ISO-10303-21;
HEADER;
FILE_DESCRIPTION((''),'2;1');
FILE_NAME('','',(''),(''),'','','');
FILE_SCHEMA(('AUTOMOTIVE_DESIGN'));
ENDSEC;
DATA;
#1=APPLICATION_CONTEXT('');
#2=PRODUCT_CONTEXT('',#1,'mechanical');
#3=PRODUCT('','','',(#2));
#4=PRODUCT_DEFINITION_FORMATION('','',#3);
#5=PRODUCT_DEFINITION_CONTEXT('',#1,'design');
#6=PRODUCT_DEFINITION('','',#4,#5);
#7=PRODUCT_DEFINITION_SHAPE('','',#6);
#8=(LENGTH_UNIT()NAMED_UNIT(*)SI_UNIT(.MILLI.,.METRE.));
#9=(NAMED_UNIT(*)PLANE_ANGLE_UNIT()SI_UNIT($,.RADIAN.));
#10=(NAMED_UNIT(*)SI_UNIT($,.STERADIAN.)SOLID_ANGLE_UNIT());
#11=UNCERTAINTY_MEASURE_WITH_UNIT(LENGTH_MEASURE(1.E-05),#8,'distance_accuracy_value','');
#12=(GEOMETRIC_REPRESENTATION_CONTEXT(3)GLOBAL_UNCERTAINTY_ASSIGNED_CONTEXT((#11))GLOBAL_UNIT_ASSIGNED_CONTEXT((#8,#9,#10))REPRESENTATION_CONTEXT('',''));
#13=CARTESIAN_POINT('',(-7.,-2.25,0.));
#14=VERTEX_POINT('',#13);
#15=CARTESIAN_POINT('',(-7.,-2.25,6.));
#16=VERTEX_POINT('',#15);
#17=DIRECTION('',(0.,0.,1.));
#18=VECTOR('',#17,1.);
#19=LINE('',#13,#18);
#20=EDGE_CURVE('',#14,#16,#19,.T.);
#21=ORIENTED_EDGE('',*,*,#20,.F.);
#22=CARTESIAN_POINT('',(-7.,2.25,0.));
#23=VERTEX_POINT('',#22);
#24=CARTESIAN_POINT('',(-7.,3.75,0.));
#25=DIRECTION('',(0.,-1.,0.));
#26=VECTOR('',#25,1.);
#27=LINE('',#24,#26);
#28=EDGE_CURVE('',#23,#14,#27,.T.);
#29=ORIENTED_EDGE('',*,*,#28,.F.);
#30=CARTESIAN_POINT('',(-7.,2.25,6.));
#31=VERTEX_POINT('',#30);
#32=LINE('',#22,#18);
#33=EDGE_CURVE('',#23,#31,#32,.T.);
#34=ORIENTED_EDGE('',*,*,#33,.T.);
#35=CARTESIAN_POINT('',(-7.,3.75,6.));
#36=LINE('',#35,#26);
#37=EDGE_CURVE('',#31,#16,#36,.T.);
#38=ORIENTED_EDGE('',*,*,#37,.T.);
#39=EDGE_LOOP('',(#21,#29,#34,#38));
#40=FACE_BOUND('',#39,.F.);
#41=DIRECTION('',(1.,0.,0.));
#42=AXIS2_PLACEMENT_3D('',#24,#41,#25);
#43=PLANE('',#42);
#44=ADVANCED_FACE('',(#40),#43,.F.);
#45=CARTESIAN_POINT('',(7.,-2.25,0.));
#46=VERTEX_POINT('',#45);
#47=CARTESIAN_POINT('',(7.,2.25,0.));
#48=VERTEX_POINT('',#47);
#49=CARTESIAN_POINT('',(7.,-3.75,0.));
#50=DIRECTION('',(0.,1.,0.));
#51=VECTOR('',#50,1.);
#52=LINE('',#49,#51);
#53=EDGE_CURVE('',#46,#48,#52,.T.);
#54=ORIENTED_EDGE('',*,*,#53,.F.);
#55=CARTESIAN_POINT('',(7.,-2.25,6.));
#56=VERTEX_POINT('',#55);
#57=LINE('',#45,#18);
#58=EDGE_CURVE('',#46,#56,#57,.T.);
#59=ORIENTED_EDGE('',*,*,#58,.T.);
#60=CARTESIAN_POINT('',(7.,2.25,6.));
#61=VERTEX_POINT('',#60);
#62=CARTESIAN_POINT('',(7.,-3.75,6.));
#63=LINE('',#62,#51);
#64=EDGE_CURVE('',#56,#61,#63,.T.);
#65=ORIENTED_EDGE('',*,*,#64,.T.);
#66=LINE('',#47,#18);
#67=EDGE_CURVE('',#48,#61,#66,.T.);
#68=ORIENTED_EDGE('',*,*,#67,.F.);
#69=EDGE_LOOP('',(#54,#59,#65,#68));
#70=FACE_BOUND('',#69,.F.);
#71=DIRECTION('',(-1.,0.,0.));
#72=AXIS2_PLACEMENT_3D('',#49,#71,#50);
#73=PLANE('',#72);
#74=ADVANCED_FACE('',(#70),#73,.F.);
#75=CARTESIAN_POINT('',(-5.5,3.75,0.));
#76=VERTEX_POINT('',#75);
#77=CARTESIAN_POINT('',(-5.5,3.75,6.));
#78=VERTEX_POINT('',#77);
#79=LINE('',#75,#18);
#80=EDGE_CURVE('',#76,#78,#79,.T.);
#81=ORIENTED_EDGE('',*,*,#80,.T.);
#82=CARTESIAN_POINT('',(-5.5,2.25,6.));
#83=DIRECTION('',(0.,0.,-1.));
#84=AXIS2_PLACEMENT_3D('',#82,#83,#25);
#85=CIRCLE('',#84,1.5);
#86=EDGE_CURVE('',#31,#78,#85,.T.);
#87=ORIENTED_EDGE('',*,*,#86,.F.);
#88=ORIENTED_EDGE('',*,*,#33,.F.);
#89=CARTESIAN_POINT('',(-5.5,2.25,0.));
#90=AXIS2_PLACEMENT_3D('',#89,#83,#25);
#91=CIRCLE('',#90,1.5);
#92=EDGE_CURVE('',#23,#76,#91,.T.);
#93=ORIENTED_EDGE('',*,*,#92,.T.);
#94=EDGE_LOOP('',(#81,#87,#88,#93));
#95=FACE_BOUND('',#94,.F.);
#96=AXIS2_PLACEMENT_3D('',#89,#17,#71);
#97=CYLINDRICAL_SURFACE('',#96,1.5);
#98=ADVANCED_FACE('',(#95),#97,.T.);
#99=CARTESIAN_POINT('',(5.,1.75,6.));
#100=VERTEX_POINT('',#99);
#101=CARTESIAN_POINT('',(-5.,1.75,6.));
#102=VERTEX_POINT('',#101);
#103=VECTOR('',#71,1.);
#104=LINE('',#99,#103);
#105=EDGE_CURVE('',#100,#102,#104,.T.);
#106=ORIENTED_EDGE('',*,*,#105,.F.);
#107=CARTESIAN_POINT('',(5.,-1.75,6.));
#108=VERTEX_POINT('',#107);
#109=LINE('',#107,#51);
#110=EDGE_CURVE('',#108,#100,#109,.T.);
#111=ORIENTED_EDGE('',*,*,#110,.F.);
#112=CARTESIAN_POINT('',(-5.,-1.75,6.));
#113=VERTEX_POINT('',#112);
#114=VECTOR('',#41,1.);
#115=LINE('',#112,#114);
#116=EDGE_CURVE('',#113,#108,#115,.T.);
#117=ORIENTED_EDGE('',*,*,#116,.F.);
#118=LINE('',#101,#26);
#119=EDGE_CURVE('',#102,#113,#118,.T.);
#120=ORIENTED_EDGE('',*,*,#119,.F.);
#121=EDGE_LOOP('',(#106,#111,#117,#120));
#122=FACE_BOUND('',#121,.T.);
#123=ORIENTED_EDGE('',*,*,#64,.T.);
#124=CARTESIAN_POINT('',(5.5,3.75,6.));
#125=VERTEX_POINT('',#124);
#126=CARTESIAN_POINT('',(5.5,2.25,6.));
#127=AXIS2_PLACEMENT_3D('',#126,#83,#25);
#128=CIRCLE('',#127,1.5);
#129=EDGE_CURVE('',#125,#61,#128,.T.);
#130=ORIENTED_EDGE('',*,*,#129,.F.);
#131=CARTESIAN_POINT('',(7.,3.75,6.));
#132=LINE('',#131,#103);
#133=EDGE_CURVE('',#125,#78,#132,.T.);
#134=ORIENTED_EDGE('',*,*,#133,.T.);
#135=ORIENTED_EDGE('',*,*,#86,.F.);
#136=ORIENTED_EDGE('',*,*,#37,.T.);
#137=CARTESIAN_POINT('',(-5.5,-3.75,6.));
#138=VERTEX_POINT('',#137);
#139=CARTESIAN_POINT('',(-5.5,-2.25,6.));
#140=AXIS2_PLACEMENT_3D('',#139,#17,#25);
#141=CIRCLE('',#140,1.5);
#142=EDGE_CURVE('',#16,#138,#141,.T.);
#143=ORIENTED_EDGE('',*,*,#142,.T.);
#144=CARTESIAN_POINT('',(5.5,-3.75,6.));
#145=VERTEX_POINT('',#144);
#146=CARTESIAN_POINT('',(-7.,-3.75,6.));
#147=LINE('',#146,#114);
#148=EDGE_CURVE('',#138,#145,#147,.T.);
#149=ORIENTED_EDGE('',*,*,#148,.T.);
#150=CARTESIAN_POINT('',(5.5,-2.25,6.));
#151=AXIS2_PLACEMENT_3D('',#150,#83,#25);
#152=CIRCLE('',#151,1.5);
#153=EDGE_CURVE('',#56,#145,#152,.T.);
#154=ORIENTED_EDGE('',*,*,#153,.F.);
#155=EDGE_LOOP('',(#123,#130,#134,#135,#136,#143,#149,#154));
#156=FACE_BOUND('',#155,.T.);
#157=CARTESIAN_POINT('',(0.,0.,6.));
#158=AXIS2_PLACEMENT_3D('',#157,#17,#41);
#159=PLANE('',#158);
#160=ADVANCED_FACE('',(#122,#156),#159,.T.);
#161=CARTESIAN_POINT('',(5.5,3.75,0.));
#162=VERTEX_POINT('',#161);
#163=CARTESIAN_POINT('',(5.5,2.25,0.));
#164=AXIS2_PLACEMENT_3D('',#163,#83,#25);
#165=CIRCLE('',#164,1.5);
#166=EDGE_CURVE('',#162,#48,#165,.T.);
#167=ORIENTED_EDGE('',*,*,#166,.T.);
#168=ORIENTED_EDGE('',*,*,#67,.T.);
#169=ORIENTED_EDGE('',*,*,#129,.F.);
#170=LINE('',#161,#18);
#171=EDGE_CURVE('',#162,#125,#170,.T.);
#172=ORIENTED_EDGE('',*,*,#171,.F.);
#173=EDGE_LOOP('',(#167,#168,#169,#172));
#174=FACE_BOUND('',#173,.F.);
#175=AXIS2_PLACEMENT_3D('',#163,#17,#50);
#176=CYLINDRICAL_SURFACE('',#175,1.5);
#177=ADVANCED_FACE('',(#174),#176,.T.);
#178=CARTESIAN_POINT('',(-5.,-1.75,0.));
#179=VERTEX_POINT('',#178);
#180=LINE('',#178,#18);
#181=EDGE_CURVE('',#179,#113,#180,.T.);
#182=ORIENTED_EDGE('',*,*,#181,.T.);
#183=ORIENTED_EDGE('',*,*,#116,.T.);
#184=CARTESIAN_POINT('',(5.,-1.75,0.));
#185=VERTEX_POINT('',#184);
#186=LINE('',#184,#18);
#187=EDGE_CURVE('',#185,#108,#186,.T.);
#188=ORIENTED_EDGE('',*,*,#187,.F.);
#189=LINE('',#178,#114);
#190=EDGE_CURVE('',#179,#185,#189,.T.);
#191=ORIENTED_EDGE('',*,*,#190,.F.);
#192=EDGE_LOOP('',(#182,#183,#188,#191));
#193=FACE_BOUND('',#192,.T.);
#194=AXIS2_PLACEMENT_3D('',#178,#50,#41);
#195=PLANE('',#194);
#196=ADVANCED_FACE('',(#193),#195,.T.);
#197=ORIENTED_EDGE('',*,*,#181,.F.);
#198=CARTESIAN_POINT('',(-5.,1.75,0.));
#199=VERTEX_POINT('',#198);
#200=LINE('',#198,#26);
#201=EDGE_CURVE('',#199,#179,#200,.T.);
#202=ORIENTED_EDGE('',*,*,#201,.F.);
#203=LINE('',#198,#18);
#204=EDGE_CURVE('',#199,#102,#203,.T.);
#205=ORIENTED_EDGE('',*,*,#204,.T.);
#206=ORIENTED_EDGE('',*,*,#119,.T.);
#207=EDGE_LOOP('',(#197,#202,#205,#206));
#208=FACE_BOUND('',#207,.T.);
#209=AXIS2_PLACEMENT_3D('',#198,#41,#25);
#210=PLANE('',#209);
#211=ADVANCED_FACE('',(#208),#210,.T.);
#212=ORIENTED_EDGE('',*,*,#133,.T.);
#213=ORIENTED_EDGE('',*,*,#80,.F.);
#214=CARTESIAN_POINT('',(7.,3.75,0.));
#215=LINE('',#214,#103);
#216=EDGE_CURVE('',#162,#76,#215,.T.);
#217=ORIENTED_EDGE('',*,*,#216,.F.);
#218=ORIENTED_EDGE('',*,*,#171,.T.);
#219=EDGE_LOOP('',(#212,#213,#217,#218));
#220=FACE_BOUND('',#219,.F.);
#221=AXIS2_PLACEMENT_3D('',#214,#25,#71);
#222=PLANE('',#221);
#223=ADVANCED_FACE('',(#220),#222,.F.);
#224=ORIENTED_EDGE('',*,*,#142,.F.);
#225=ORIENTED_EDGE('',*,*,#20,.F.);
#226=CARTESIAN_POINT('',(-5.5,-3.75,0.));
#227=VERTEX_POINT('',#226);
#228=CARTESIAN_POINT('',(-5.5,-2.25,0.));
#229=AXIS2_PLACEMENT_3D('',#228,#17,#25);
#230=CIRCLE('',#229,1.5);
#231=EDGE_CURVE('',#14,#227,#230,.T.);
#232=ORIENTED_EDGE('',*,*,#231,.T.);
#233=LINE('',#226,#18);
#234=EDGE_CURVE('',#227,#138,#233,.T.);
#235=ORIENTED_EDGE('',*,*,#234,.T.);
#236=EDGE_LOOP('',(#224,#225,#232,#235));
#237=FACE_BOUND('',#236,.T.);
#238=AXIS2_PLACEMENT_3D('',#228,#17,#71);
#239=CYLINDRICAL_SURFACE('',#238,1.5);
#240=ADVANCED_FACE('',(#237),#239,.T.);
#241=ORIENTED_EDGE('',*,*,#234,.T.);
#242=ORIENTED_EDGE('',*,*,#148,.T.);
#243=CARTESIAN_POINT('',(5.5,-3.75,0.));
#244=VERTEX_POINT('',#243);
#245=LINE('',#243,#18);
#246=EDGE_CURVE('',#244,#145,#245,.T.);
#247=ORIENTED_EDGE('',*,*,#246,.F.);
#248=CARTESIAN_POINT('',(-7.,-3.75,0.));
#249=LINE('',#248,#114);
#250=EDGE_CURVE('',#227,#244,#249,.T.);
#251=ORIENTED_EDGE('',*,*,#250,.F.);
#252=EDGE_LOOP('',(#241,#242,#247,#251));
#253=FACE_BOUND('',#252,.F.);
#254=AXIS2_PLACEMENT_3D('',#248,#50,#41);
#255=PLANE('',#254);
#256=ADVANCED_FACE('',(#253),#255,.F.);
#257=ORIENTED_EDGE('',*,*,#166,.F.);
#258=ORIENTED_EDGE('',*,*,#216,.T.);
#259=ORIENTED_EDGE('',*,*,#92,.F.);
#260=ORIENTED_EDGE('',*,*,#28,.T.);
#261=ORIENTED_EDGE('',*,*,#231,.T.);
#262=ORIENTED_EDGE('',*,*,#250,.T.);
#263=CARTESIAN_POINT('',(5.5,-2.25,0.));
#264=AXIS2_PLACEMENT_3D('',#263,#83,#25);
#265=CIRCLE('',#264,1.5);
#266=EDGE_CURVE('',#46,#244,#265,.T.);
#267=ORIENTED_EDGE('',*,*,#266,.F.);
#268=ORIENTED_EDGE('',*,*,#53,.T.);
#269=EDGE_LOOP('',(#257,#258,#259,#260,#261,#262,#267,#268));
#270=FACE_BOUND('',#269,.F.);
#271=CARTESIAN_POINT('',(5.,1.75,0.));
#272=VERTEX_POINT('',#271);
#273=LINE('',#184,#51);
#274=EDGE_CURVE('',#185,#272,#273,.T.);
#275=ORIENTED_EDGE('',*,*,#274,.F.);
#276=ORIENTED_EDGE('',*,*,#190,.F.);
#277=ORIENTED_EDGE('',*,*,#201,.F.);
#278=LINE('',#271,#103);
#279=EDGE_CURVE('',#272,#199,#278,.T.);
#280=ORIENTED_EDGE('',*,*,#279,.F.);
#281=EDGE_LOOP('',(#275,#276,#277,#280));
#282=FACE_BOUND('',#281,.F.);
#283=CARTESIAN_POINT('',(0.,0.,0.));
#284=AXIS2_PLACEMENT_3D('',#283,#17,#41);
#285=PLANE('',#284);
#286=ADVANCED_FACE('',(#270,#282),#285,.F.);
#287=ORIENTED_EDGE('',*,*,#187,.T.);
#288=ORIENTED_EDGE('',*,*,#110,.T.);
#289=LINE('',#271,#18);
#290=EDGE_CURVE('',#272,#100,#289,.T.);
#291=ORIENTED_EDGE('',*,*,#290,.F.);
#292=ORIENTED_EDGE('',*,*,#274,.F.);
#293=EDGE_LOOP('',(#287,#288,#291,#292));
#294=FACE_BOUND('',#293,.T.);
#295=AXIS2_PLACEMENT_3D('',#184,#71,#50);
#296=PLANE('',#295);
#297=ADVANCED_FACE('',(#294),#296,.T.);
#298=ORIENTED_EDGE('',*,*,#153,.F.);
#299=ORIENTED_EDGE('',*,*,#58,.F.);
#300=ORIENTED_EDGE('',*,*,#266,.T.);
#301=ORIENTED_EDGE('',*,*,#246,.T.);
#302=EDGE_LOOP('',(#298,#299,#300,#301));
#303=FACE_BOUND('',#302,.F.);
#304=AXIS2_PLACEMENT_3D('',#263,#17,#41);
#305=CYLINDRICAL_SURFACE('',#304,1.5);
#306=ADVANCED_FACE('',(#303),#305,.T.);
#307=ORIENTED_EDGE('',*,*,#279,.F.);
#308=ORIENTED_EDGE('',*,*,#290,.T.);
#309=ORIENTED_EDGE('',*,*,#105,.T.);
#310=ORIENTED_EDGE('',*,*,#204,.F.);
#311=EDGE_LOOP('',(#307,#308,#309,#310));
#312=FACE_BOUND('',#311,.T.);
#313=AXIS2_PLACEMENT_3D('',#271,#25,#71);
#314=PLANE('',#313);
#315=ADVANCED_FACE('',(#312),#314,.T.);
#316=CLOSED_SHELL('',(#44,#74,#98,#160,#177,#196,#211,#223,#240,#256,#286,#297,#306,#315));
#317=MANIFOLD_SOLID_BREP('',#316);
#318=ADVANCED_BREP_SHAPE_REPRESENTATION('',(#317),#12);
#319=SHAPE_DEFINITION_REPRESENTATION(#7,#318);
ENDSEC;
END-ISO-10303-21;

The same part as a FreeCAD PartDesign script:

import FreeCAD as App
import Part
import Sketcher

V = App.Vector
Q = App.Units.Quantity


def edges_at(feature, points):
    """Names of the edges that pass closest to the given points."""
    edges = feature.Shape.Edges
    near = lambda p: min(range(len(edges)), key=lambda i: edges[i].distToShape(Part.Vertex(*p))[0])
    return sorted({f"Edge{near(p) + 1}" for p in points})


def add_polygon(sketch, points):
    """Adds a closed chain of lines whose ends are joined by coincident constraints."""
    first, n = sketch.GeometryCount, len(points)
    for a, b in zip(points, points[1:] + points[:1]):
        sketch.addGeometry(Part.LineSegment(App.Vector(*a, 0), App.Vector(*b, 0)), False)
    for i in range(n):
        sketch.addConstraint(Sketcher.Constraint("Coincident", first + i, 2, first + (i + 1) % n, 1))

doc = App.newDocument("Part")
body = doc.addObject("PartDesign::Body", "Body")

# Sketch on XY plane
sketch1 = doc.addObject("Sketcher::SketchObject", "Sketch")
body.addObject(sketch1)
sketch1.AttachmentSupport = (doc.XY_Plane, [""])
sketch1.MapMode = "FlatFace"
add_polygon(sketch1, [(-7, 3.8), (-7, -3.8), (7, -3.8), (7, 3.8)])  # lines 0-3
add_polygon(sketch1, [(-5, 1.8), (5, 1.8), (5, -1.8), (-5, -1.8)])  # lines 4-7
sketch1.addConstraint(Sketcher.Constraint("Vertical", 0))
sketch1.addConstraint(Sketcher.Constraint("Horizontal", 1))
sketch1.addConstraint(Sketcher.Constraint("Vertical", 2))
sketch1.addConstraint(Sketcher.Constraint("Horizontal", 3))
sketch1.addConstraint(Sketcher.Constraint("Horizontal", 4))
sketch1.addConstraint(Sketcher.Constraint("Vertical", 5))
sketch1.addConstraint(Sketcher.Constraint("Horizontal", 6))
sketch1.addConstraint(Sketcher.Constraint("Vertical", 7))
sketch1.addConstraint(Sketcher.Constraint("Symmetric", 0, 2, 2, 2, -1, 1))
sketch1.addConstraint(Sketcher.Constraint("Symmetric", 4, 2, 6, 2, -1, 1))
sketch1.addConstraint(Sketcher.Constraint("DistanceX", 4, 1, 4, 2, Q("10 mm")))
sketch1.addConstraint(Sketcher.Constraint("DistanceY", 5, 2, 5, 1, Q("3.5 mm")))
sketch1.addConstraint(Sketcher.Constraint("DistanceX", 4, 2, 2, 2, Q("2 mm")))
sketch1.addConstraint(Sketcher.Constraint("DistanceY", 4, 2, 2, 2, Q("2 mm")))
pad1 = doc.addObject("PartDesign::Pad", "Pad")
body.addObject(pad1)
pad1.Profile = sketch1
pad1.Length = 6
doc.recompute()

fillet = doc.addObject("PartDesign::Fillet", "Fillet")
body.addObject(fillet)
fillet.Base = (pad1, edges_at(pad1, [
    (7, 3.75, 3),
    (-7, 3.75, 3),
    (-7, -3.75, 3),
    (7, -3.75, 3),
]))
fillet.Radius = 1.5

doc.recompute()
